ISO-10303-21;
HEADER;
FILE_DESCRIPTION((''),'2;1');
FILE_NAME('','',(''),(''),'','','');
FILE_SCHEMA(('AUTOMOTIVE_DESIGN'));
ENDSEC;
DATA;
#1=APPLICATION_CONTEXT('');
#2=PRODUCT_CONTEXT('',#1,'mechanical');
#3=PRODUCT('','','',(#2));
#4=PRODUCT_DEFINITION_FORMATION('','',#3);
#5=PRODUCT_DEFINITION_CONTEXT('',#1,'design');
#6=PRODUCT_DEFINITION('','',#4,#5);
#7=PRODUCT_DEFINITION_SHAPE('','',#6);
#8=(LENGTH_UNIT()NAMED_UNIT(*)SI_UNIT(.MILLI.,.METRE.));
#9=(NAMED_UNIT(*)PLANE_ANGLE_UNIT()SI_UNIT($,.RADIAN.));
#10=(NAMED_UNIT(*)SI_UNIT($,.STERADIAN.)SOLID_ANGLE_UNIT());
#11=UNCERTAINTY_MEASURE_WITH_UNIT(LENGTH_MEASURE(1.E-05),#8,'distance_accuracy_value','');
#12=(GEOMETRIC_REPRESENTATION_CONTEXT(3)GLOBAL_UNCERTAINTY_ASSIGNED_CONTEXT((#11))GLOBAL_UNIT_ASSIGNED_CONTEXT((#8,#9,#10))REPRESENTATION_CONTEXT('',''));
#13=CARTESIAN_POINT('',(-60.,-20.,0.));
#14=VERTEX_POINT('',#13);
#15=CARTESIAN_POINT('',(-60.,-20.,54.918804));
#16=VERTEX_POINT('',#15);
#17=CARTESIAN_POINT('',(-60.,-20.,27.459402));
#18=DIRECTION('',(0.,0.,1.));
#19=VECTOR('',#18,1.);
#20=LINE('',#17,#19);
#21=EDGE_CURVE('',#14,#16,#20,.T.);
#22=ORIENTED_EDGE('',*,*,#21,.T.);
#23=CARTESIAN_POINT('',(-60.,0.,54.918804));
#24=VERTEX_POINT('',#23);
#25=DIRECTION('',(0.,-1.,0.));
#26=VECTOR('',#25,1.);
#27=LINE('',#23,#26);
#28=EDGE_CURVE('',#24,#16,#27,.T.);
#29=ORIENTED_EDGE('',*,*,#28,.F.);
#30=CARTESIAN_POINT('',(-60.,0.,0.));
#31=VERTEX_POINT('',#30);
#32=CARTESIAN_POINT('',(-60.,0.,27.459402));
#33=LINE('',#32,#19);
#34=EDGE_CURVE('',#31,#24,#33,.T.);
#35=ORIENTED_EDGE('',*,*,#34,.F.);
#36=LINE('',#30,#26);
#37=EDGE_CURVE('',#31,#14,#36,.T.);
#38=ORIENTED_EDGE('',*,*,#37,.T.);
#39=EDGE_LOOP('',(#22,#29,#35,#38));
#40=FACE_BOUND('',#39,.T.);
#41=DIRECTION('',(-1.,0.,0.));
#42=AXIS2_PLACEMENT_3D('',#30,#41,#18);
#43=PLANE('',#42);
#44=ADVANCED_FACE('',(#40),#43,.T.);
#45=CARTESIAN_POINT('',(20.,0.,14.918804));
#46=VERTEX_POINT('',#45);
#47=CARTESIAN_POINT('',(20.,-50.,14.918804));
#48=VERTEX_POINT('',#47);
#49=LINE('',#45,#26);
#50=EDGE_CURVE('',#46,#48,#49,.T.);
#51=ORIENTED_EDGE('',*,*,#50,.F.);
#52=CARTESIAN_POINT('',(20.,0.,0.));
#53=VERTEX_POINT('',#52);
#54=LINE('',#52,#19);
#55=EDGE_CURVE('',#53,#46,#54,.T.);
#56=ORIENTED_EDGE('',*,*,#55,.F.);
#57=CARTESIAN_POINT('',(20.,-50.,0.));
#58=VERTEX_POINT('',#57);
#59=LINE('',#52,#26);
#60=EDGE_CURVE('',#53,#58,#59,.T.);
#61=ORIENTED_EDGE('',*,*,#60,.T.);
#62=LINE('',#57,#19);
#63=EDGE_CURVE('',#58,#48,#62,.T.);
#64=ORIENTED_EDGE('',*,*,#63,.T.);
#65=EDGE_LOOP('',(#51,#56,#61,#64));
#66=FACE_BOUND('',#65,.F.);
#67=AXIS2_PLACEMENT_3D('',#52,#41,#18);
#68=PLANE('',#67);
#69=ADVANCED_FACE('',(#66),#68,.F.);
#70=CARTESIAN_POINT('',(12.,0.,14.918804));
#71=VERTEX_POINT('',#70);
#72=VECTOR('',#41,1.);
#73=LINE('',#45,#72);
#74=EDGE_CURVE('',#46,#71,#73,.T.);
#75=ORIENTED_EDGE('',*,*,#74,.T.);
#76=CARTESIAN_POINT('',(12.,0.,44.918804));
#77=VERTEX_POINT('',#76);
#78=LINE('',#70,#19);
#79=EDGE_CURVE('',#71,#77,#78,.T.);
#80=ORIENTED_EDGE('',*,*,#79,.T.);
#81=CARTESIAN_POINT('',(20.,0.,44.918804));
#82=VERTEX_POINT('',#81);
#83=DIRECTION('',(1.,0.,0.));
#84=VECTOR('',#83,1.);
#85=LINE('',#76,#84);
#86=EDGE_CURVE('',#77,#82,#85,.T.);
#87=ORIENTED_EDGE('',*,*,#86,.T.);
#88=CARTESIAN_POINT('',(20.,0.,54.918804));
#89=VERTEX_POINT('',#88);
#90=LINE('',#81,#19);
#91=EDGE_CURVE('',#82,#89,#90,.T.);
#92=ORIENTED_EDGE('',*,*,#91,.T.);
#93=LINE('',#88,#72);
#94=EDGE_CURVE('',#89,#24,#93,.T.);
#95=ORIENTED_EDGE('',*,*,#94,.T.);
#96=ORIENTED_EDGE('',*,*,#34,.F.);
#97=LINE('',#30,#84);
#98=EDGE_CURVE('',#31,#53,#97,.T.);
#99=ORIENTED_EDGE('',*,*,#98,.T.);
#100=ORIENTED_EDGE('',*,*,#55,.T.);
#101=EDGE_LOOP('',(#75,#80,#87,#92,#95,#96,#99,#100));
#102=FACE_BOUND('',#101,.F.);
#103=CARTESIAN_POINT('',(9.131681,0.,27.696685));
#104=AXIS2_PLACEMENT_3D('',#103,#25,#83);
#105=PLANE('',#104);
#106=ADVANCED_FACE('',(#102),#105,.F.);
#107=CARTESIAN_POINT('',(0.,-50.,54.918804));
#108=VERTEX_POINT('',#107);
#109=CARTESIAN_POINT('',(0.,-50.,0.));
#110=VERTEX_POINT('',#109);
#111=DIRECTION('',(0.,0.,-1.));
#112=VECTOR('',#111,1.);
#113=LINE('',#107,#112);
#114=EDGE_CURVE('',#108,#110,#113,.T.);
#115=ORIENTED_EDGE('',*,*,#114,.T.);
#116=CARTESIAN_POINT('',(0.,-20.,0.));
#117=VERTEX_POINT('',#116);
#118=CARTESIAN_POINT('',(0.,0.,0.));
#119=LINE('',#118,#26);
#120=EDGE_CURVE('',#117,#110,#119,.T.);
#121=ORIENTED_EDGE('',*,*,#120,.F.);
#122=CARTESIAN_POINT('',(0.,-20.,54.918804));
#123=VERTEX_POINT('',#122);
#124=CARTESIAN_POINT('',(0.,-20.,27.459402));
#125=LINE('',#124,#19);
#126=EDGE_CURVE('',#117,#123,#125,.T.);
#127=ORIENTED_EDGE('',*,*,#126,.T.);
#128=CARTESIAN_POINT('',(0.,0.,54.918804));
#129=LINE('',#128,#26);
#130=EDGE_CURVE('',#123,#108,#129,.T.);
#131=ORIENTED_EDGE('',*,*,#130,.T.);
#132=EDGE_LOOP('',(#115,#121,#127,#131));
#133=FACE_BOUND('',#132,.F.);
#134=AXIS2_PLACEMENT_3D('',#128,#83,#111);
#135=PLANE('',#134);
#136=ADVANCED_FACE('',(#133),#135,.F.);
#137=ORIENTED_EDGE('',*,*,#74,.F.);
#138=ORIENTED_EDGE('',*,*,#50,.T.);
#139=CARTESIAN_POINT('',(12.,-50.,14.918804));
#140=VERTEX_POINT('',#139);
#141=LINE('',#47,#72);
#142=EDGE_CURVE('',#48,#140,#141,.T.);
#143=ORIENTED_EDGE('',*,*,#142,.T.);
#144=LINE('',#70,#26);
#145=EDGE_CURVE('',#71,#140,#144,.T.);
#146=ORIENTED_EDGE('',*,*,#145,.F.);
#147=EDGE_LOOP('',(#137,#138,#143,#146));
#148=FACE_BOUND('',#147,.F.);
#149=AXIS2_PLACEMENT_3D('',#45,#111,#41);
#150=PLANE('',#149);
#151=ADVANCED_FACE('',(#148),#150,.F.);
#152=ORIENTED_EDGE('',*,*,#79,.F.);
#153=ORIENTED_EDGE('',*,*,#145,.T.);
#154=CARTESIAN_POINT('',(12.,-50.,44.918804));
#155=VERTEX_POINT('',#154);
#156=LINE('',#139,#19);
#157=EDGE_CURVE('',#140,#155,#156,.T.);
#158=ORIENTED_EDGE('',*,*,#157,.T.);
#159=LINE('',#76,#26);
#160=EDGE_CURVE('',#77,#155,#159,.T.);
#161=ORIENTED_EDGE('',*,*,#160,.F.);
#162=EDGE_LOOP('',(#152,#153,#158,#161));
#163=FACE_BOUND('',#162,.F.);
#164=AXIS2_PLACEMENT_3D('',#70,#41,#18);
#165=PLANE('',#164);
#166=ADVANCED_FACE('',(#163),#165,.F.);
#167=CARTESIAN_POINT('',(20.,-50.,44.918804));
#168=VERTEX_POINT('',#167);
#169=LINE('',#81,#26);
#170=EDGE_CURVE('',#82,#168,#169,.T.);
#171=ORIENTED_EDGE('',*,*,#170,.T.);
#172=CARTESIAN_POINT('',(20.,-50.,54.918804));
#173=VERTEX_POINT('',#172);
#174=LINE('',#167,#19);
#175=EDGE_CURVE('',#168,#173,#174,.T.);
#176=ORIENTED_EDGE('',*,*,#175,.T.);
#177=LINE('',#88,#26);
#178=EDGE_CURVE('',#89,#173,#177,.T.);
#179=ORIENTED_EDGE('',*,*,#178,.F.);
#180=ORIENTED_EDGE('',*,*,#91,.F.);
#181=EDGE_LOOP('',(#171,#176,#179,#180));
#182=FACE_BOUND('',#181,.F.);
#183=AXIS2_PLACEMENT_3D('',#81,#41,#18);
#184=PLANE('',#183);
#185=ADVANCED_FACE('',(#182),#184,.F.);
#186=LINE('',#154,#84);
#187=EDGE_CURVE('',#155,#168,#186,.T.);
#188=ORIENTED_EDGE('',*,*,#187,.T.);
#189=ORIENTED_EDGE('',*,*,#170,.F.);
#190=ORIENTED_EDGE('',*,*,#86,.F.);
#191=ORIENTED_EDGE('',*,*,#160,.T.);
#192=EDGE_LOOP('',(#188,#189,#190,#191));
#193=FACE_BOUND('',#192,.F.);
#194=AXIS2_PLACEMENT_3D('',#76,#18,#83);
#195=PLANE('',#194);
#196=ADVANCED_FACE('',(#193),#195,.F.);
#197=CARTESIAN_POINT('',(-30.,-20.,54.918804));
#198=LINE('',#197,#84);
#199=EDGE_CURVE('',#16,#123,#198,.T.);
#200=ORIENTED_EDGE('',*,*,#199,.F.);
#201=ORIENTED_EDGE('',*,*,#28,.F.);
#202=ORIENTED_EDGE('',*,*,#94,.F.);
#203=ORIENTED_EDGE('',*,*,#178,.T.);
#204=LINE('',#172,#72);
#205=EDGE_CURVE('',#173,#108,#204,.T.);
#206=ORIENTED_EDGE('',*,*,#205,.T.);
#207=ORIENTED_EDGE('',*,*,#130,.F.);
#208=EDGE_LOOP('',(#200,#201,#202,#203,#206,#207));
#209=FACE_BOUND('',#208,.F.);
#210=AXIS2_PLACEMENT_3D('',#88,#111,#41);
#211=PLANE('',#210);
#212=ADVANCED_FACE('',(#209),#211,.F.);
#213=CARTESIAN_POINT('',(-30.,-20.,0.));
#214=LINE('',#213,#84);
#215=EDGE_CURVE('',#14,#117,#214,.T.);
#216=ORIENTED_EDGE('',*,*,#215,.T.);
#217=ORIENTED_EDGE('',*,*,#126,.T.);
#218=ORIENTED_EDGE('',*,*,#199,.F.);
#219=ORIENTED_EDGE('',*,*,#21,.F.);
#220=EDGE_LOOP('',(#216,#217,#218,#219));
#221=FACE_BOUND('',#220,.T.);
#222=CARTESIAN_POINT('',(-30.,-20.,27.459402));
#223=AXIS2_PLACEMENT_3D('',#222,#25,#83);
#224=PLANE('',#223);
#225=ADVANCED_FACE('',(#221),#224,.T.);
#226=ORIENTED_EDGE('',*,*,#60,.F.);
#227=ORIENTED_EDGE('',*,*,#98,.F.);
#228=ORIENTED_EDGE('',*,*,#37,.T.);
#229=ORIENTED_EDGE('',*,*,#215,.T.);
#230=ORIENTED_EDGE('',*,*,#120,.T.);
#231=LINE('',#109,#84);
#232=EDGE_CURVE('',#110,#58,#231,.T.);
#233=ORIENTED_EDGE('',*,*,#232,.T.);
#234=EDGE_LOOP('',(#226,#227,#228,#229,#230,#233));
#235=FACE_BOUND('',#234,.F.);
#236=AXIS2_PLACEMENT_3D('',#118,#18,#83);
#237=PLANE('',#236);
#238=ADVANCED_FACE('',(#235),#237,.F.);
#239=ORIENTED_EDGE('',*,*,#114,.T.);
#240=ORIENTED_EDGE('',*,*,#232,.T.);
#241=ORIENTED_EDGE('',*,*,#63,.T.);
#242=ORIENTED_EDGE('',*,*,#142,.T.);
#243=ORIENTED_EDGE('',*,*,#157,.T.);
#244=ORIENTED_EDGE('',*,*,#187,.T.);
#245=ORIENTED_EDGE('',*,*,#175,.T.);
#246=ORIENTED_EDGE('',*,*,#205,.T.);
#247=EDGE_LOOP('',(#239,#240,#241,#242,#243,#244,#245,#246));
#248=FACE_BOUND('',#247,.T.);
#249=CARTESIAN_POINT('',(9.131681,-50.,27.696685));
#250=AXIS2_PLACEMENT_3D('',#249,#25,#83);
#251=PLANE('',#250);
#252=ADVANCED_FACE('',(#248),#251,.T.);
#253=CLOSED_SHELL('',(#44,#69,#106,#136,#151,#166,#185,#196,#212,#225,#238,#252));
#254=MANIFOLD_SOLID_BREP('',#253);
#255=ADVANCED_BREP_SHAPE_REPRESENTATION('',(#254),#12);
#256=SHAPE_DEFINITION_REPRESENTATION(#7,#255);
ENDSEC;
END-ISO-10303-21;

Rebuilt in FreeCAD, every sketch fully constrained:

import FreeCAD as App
import Part
import Sketcher


def add_polygon(sketch, points):
    """Adds a closed chain of lines whose ends are joined by coincident constraints."""
    first, n = sketch.GeometryCount, len(points)
    for a, b in zip(points, points[1:] + points[:1]):
        sketch.addGeometry(Part.LineSegment(App.Vector(*a, 0), App.Vector(*b, 0)), False)
    for i in range(n):
        sketch.addConstraint(Sketcher.Constraint("Coincident", first + i, 2, first + (i + 1) % n, 1))

doc = App.newDocument("Part")
body = doc.addObject("PartDesign::Body", "Body")

# Sketch on XZ plane
sketch1 = body.newObject("Sketcher::SketchObject", "Sketch")
sketch1.AttachmentSupport = (doc.getObject("XZ_Plane"), [""])
sketch1.MapMode = "FlatFace"
add_polygon(sketch1, [(-60, 55), (-60, 0), (0, 0), (0, 55)])  # lines 0-3
sketch1.addConstraint(Sketcher.Constraint("Vertical", 0))
sketch1.addConstraint(Sketcher.Constraint("Horizontal", 1))
sketch1.addConstraint(Sketcher.Constraint("Vertical", 2))
sketch1.addConstraint(Sketcher.Constraint("Horizontal", 3))
sketch1.addConstraint(Sketcher.Constraint("Coincident", 1, 2, -1, 1))
sketch1.addConstraint(Sketcher.Constraint("DistanceX", 1, 1, 1, 2, 60.0))
sketch1.addConstraint(Sketcher.Constraint("DistanceY", 0, 2, 0, 1, 54.918804))
pad1 = body.newObject("PartDesign::Pad", "Pad")
pad1.Profile = sketch1
pad1.Length = 20

# Sketch on XZ plane
sketch2 = body.newObject("Sketcher::SketchObject", "Sketch001")
sketch2.AttachmentSupport = (doc.getObject("XZ_Plane"), [""])
sketch2.MapMode = "FlatFace"
add_polygon(sketch2, [(0, 55), (0, 0), (20, 0), (20, 15), (12, 15), (12, 45), (20, 45), (20, 55)])  # lines 0-7
sketch2.addConstraint(Sketcher.Constraint("Vertical", 0))
sketch2.addConstraint(Sketcher.Constraint("Horizontal", 1))
sketch2.addConstraint(Sketcher.Constraint("Vertical", 2))
sketch2.addConstraint(Sketcher.Constraint("Horizontal", 3))
sketch2.addConstraint(Sketcher.Constraint("Vertical", 4))
sketch2.addConstraint(Sketcher.Constraint("Horizontal", 5))
sketch2.addConstraint(Sketcher.Constraint("Vertical", 6))
sketch2.addConstraint(Sketcher.Constraint("Horizontal", 7))
sketch2.addConstraint(Sketcher.Constraint("Coincident", 0, 2, -1, 1))
sketch2.addConstraint(Sketcher.Constraint("Vertical", 2, 2, 5, 2))
sketch2.addConstraint(Sketcher.Constraint("DistanceX", 1, 1, 1, 2, 20.0))
sketch2.addConstraint(Sketcher.Constraint("DistanceX", 3, 2, 3, 1, 8.0))
sketch2.addConstraint(Sketcher.Constraint("DistanceY", 4, 1, 4, 2, 30.0))
sketch2.addConstraint(Sketcher.Constraint("DistanceY", 6, 1, 6, 2, 10.0))
sketch2.addConstraint(Sketcher.Constraint("DistanceY", 0, 2, 0, 1, 54.918804))
pad2 = body.newObject("PartDesign::Pad", "Pad001")
pad2.Profile = sketch2
pad2.Length = 50

doc.recompute()
